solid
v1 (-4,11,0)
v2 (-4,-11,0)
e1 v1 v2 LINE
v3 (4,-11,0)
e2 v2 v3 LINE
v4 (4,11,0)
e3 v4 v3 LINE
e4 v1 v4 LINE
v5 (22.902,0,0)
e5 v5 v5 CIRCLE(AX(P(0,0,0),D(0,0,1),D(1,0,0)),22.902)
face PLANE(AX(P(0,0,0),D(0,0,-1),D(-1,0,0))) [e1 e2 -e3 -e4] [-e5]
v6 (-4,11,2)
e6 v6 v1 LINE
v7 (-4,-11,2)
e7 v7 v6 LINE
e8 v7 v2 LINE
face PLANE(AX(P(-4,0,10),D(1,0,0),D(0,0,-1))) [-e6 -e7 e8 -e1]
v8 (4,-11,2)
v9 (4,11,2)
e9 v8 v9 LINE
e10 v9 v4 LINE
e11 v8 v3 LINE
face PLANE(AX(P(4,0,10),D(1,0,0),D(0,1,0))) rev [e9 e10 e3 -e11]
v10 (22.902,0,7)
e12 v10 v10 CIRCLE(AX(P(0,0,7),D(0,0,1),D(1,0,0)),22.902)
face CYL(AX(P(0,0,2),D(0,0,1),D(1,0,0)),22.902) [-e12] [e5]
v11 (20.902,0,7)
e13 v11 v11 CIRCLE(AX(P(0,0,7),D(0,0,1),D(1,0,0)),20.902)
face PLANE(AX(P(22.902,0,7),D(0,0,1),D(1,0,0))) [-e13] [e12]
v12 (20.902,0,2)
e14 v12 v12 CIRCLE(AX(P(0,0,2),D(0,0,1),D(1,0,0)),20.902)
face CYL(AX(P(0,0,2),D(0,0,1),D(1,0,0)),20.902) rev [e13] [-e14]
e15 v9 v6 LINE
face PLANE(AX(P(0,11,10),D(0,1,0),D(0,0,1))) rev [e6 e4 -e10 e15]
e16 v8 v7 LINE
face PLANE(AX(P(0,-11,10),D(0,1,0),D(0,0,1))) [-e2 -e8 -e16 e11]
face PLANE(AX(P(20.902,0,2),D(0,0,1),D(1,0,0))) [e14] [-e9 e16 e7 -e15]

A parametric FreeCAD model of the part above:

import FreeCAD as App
import Part
import Sketcher
Q = App.Units.Quantity


def add_polygon(sketch, points):
    """Adds a closed chain of lines whose ends are joined by coincident constraints."""
    first, n = sketch.GeometryCount, len(points)
    for a, b in zip(points, points[1:] + points[:1]):
        sketch.addGeometry(Part.LineSegment(App.Vector(*a, 0), App.Vector(*b, 0)), False)
    for i in range(n):
        sketch.addConstraint(Sketcher.Constraint("Coincident", first + i, 2, first + (i + 1) % n, 1))

doc = App.newDocument("Part")
body = doc.addObject("PartDesign::Body", "Body")

# Sketch on XZ plane
sketch1 = body.newObject("Sketcher::SketchObject", "Sketch")
sketch1.AttachmentSupport = (doc.getObject("XZ_Plane"), [""])
sketch1.MapMode = "FlatFace"
add_polygon(sketch1, [(22.9, 0), (0, 0), (0, 2), (20.9, 2), (20.9, 7), (22.9, 7)])  # lines 0-5
sketch1.addConstraint([
    Sketcher.Constraint("Horizontal", 0),
    Sketcher.Constraint("Vertical", 1),
    Sketcher.Constraint("Horizontal", 2),
    Sketcher.Constraint("Vertical", 3),
    Sketcher.Constraint("Horizontal", 4),
    Sketcher.Constraint("Vertical", 5),
    Sketcher.Constraint("Coincident", 0, 2, -1, 1),
    Sketcher.Constraint("Equal", 4, 1),
    Sketcher.Constraint("DistanceX", 4, 1, 4, 2, Q("2 mm")),
    Sketcher.Constraint("DistanceY", 3, 1, 3, 2, Q("5 mm")),
    Sketcher.Constraint("DistanceX", 0, 2, 0, 1, Q("22.902 mm")),
])
revolution = body.newObject("PartDesign::Revolution", "Revolution")
revolution.Profile = sketch1
revolution.ReferenceAxis = (sketch1, ["V_Axis"])
revolution.Angle = 360

# Sketch on XY plane
sketch2 = body.newObject("Sketcher::SketchObject", "Sketch001")
sketch2.AttachmentSupport = (doc.getObject("XY_Plane"), [""])
sketch2.MapMode = "FlatFace"
add_polygon(sketch2, [(4, 11), (4, -11), (-4, -11), (-4, 11)])  # lines 0-3
sketch2.addConstraint([
    Sketcher.Constraint("Vertical", 0),
    Sketcher.Constraint("Horizontal", 1),
    Sketcher.Constraint("Vertical", 2),
    Sketcher.Constraint("Horizontal", 3),
    Sketcher.Constraint("Symmetric", 0, 2, 2, 2, -1, 1),
    Sketcher.Constraint("DistanceX", 1, 2, 1, 1, Q("8 mm")),
    Sketcher.Constraint("DistanceY", 0, 2, 0, 1, Q("22 mm")),
])
pocket1 = body.newObject("PartDesign::Pocket", "Pocket")
pocket1.Profile = sketch2
pocket1.Length = 10
pocket1.Reversed = True

doc.recompute()
